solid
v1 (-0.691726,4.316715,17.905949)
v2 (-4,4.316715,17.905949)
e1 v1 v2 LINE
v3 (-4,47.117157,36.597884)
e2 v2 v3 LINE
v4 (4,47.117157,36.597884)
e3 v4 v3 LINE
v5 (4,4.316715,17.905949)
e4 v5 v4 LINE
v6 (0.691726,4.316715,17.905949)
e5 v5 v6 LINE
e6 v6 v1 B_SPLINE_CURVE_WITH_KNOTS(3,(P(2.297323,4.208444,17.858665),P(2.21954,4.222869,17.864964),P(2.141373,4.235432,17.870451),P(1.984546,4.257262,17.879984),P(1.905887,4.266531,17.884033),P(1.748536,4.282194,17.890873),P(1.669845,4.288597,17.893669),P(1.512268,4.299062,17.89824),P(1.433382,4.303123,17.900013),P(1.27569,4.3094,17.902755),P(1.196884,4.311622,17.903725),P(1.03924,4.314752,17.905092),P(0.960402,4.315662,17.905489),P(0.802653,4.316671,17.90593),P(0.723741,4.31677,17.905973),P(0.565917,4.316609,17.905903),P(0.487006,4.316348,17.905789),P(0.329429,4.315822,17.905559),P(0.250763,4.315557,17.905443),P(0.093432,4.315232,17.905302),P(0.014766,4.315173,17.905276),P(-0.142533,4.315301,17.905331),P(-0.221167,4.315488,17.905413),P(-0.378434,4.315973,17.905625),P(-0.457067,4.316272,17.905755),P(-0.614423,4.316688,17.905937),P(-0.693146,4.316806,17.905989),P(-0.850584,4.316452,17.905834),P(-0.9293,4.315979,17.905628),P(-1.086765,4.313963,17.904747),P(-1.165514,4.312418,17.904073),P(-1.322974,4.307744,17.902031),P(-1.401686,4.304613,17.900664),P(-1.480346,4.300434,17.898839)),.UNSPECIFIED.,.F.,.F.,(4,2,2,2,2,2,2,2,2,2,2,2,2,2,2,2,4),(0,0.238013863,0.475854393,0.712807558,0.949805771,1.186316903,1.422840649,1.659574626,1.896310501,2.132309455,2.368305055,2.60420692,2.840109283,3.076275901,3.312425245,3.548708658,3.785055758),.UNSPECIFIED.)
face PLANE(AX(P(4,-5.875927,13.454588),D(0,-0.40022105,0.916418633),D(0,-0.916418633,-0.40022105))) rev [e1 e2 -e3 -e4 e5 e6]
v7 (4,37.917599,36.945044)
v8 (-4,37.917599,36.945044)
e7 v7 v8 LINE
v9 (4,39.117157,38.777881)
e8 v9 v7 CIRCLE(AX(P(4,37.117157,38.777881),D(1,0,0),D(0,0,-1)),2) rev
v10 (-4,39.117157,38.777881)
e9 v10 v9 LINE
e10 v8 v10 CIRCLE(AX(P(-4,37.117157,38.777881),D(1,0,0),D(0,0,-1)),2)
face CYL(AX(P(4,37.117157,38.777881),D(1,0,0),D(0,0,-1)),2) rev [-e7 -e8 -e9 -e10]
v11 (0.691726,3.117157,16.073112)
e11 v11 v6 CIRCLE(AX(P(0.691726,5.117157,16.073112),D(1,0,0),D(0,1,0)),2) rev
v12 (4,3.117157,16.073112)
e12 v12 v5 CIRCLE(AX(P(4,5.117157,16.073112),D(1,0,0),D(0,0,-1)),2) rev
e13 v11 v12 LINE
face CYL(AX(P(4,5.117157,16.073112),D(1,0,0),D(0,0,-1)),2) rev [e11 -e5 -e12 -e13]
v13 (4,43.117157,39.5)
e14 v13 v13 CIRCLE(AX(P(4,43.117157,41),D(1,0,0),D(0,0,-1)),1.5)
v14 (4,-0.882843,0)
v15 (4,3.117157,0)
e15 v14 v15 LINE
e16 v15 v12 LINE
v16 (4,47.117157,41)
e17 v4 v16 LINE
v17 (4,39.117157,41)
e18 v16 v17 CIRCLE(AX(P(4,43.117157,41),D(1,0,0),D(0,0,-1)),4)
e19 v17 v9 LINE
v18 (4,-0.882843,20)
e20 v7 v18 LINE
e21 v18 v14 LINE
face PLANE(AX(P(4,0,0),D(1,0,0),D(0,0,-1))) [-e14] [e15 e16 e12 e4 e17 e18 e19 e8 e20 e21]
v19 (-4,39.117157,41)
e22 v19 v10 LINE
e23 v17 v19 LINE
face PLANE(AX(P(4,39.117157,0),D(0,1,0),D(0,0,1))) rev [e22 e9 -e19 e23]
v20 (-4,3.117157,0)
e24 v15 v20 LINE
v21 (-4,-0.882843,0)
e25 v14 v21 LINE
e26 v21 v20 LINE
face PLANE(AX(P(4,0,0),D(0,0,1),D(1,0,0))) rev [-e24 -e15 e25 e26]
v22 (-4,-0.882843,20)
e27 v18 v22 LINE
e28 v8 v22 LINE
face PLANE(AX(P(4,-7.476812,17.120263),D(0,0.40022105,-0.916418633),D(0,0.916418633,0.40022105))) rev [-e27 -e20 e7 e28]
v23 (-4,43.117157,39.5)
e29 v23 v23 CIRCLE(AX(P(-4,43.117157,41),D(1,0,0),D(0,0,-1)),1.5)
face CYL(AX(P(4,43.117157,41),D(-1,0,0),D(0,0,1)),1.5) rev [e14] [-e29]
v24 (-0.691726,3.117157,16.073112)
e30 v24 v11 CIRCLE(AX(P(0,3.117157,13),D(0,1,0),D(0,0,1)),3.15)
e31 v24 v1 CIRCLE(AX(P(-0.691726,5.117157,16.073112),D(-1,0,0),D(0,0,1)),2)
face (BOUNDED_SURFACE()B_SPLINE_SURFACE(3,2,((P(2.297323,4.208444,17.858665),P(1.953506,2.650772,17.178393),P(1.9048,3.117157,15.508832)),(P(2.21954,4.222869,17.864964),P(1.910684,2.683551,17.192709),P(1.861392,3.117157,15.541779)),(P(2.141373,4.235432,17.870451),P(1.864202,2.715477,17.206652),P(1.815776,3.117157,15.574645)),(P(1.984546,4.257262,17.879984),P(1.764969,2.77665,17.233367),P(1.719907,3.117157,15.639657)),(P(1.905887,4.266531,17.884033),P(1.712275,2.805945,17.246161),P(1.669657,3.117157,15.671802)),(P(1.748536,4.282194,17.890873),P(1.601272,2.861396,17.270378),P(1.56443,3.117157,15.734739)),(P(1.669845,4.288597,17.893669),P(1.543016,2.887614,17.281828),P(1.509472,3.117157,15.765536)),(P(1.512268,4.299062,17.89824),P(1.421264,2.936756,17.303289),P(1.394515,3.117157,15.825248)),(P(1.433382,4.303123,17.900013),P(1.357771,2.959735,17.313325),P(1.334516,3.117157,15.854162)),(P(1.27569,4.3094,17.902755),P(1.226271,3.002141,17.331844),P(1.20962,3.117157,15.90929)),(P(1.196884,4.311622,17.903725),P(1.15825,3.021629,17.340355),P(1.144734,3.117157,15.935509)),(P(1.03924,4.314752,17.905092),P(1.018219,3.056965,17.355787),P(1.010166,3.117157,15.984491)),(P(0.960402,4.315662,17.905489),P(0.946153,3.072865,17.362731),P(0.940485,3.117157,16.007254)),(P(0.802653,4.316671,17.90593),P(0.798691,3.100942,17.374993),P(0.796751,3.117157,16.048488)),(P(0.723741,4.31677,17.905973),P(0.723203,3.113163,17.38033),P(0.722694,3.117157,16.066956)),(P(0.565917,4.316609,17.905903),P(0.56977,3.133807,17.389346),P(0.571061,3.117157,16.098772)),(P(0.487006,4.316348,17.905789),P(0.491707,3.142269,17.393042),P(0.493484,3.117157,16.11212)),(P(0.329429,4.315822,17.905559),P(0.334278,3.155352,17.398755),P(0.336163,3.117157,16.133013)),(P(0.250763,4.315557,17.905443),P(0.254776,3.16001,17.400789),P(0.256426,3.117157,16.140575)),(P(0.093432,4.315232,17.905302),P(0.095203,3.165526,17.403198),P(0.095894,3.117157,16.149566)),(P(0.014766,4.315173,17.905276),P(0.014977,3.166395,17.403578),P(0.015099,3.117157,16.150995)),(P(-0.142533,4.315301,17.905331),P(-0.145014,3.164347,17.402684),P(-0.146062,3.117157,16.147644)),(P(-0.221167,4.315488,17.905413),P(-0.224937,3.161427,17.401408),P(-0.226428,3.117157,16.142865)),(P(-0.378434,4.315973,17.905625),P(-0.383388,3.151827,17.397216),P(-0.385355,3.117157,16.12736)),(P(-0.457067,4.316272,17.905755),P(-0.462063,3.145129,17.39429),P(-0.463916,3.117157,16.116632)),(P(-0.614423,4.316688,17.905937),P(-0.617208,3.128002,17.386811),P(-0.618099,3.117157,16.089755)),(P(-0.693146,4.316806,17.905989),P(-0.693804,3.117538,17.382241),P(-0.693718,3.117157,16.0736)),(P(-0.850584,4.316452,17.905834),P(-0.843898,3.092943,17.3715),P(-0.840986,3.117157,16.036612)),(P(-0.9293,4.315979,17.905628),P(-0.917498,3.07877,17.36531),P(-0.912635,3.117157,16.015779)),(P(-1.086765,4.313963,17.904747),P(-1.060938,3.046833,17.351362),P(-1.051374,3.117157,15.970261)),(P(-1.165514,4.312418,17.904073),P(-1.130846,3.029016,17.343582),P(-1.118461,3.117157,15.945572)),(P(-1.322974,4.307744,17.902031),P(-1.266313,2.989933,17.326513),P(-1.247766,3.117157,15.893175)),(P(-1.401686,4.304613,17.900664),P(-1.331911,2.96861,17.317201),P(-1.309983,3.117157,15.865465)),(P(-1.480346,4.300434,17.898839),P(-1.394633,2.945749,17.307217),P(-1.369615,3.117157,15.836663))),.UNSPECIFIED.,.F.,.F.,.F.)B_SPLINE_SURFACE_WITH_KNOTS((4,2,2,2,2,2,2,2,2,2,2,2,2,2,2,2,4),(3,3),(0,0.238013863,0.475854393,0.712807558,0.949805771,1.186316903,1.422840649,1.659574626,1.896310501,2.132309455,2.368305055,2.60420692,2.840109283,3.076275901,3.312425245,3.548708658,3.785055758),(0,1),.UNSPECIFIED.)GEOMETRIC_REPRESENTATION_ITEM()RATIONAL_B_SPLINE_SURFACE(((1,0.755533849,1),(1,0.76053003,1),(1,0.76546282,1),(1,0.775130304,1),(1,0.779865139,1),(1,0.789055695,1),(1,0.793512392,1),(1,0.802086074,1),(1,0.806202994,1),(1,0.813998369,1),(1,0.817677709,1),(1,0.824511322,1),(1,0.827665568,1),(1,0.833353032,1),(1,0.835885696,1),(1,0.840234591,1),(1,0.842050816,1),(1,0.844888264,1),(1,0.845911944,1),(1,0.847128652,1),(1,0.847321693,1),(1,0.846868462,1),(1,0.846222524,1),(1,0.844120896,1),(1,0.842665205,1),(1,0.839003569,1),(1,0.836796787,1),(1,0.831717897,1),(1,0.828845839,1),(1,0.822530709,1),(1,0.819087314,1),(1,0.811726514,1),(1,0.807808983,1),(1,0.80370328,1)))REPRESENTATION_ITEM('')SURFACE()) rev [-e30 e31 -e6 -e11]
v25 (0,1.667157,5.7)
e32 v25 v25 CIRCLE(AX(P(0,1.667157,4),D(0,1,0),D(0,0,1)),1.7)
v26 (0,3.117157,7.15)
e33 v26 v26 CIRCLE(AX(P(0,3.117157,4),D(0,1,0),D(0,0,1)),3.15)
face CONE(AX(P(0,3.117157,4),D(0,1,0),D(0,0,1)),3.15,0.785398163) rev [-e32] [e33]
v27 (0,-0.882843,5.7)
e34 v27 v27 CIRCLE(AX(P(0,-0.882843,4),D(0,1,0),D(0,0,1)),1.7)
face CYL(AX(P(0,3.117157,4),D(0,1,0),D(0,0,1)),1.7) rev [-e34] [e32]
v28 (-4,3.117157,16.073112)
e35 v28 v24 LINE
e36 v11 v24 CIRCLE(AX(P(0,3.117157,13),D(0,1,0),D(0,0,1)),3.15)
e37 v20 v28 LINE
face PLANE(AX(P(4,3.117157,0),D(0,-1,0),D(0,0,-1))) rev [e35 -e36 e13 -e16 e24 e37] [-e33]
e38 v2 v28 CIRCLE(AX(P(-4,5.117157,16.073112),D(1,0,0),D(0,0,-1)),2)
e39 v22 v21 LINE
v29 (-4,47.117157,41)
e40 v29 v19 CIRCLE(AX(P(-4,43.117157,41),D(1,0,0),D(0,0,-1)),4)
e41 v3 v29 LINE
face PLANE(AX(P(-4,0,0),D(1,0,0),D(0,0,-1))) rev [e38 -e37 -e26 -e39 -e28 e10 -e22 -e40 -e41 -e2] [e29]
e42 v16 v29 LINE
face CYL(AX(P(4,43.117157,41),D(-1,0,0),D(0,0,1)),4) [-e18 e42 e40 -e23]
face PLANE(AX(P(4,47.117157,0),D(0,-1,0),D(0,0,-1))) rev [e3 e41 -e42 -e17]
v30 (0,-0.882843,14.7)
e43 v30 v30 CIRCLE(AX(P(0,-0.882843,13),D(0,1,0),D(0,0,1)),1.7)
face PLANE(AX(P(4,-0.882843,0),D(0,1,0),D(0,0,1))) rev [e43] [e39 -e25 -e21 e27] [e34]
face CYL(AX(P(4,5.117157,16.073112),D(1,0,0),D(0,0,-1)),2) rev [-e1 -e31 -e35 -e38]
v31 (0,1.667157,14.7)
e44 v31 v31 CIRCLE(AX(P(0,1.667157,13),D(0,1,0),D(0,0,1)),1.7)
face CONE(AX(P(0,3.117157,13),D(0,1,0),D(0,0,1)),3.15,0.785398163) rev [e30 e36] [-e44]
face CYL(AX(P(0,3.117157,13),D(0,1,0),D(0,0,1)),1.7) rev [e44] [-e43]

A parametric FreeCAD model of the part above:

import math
import FreeCAD as App
import Part
import Sketcher

V = App.Vector
Q = App.Units.Quantity


def edges_at(feature, points):
    """Names of the edges that pass closest to the given points."""
    edges = feature.Shape.Edges
    near = lambda p: min(range(len(edges)), key=lambda i: edges[i].distToShape(Part.Vertex(*p))[0])
    return sorted({f"Edge{near(p) + 1}" for p in points})

doc = App.newDocument("Part")
body = doc.addObject("PartDesign::Body", "Body")

# Sketch on YZ plane
sketch1 = body.newObject("Sketcher::SketchObject", "Sketch")
sketch1.AttachmentSupport = (doc.getObject("YZ_Plane"), [""])
sketch1.MapMode = "FlatFace"
sketch1.addGeometry([
    Part.LineSegment(V(-0.9, 0, 0), V(3.1, 0, 0)),  # 0
    Part.LineSegment(V(3.1, 0, 0), V(3.1, 17.4, 0)),  # 1
    Part.LineSegment(V(3.1, 17.4, 0), V(47.1, 36.6, 0)),  # 2
    Part.LineSegment(V(47.1, 36.6, 0), V(47.1, 41, 0)),  # 3
    Part.ArcOfCircle(Part.Circle(V(43.1, 41, 0), V(0, 0, 1), 4), math.radians(0), math.radians(180)),  # 4
    Part.LineSegment(V(39.1, 41, 0), V(39.1, 37.5, 0)),  # 5
    Part.LineSegment(V(39.1, 37.5, 0), V(-0.9, 20, 0)),  # 6
    Part.LineSegment(V(-0.9, 20, 0), V(-0.9, 0, 0)),  # 7
    Part.Circle(V(43.1, 41, 0), V(0, 0, 1), 1.5),  # 8
], False)
sketch1.addConstraint([
    Sketcher.Constraint("Coincident", 0, 2, 1, 1),
    Sketcher.Constraint("Coincident", 1, 2, 2, 1),
    Sketcher.Constraint("Coincident", 2, 2, 3, 1),
    Sketcher.Constraint("Tangent", 3, 2, 4, 1),
    Sketcher.Constraint("Tangent", 4, 2, 5, 1),
    Sketcher.Constraint("Coincident", 5, 2, 6, 1),
    Sketcher.Constraint("Coincident", 6, 2, 7, 1),
    Sketcher.Constraint("Coincident", 7, 2, 0, 1),
    Sketcher.Constraint("Horizontal", 0),
    Sketcher.Constraint("Vertical", 1),
    Sketcher.Constraint("Vertical", 3),
    Sketcher.Constraint("Vertical", 5),
    Sketcher.Constraint("Vertical", 7),
    Sketcher.Constraint("Coincident", 8, 3, 4, 3),
    Sketcher.Constraint("PointOnObject", 0, 2, -1),
    Sketcher.Constraint("Parallel", 2, 6),
    Sketcher.Constraint("Diameter", 8, Q("3 mm")),
    Sketcher.Constraint("Radius", 4, Q("4 mm")),
    Sketcher.Constraint("DistanceX", 0, 1, 0, 2, Q("4 mm")),
    Sketcher.Constraint("DistanceY", 7, 2, 7, 1, Q("20 mm")),
    Sketcher.Constraint("DistanceY", -1, 1, 4, 3, Q("41 mm")),
    Sketcher.Constraint("DistanceX", 0, 2, 4, 3, Q("40 mm")),
    Sketcher.Constraint("DistanceY", 5, 2, 5, 1, Q("3.531082 mm")),
    Sketcher.Constraint("DistanceY", 1, 1, 1, 2, Q("17.382074 mm")),
    Sketcher.Constraint("DistanceX", -1, 1, 4, 3, Q("43.117157 mm")),
])
pad1 = body.newObject("PartDesign::Pad", "Pad")
pad1.Profile = sketch1
pad1.Length = 8
pad1.Midplane = True

# Sketch on XZ plane
sketch2 = body.newObject("Sketcher::SketchObject", "Sketch001")
sketch2.AttachmentSupport = (doc.getObject("XZ_Plane"), [""])
sketch2.MapMode = "FlatFace"
sketch2.AttachmentOffset = App.Placement(V(0, 0, -3.117157), App.Rotation())
sketch2.addGeometry([
    Part.Circle(V(0, 13, 0), V(0, 0, 1), 1.7),
    Part.Circle(V(0, 4, 0), V(0, 0, 1), 1.7),
], False)
sketch2.addConstraint([
    Sketcher.Constraint("Equal", 0, 1),
    Sketcher.Constraint("PointOnObject", 0, 3, -2),
    Sketcher.Constraint("PointOnObject", 1, 3, -2),
    Sketcher.Constraint("Diameter", 0, Q("3.4 mm")),
    Sketcher.Constraint("DistanceY", -1, 1, 0, 3, Q("13 mm")),
    Sketcher.Constraint("DistanceY", -1, 1, 1, 3, Q("4 mm")),
])
doc.recompute()
hole = body.newObject("PartDesign::Hole", "Hole")
hole.Profile = sketch2
hole.ThreadType = "None"
hole.Diameter = 3.4
hole.DepthType = "Dimension"
hole.Depth = 7.5
hole.DrillPoint = "Angled"
hole.DrillPointAngle = 118
hole.HoleCutType = "Countersink"
hole.HoleCutDiameter = 6.3
hole.HoleCutCountersinkAngle = 90
hole.Reversed = True
doc.recompute()

fillet = body.newObject("PartDesign::Fillet", "Fillet")
fillet.Base = (hole, edges_at(hole, [(0, 3.117, 17.382), (0, 39.117, 37.469)]))
fillet.Radius = 2

doc.recompute()
